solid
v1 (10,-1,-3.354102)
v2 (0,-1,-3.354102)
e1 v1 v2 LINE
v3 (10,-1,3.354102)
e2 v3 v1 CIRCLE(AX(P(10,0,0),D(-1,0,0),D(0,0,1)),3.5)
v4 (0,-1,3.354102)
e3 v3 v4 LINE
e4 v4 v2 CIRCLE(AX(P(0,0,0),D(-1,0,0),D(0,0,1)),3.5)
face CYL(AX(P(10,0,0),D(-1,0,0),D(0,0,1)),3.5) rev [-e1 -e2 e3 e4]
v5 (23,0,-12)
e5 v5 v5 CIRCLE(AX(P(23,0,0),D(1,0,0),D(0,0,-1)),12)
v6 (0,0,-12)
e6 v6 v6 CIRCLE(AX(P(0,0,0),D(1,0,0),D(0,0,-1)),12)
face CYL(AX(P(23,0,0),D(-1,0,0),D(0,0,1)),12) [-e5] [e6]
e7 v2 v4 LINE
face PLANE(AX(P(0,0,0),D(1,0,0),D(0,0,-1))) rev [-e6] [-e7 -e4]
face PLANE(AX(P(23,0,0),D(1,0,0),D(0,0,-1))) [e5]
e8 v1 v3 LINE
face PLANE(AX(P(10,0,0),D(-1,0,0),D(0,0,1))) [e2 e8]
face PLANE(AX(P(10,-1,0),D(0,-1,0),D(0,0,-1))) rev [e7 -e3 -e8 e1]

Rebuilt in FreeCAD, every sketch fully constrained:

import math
import FreeCAD as App
import Part
import Sketcher
Q = App.Units.Quantity

doc = App.newDocument("Part")
body = doc.addObject("PartDesign::Body", "Body")

# Sketch on YZ plane
sketch1 = body.newObject("Sketcher::SketchObject", "Sketch")
sketch1.AttachmentSupport = (doc.getObject("YZ_Plane"), [""])
sketch1.MapMode = "FlatFace"
sketch1.addGeometry(Part.Circle(App.Vector(0, 0, 0), App.Vector(0, 0, 1), 12), False)
sketch1.addConstraint(Sketcher.Constraint("Coincident", 0, 3, -1, 1))
sketch1.addConstraint(Sketcher.Constraint("Diameter", 0, Q("24 mm")))
pad1 = body.newObject("PartDesign::Pad", "Pad")
pad1.Profile = sketch1
pad1.Length = 23

# Sketch on YZ plane
sketch2 = body.newObject("Sketcher::SketchObject", "Sketch001")
sketch2.AttachmentSupport = (doc.getObject("YZ_Plane"), [""])
sketch2.MapMode = "FlatFace"
sketch2.addGeometry(Part.ArcOfCircle(Part.Circle(App.Vector(0, 0, 0), App.Vector(0, 0, 1), 3.5), math.radians(-107), math.radians(90)), False)
sketch2.addGeometry(Part.LineSegment(App.Vector(-1, -3.4, 0), App.Vector(-1, 3.4, 0)), False)
sketch2.addGeometry(Part.ArcOfCircle(Part.Circle(App.Vector(0, 0, 0), App.Vector(0, 0, 1), 3.5), math.radians(90), math.radians(106.6)), False)
sketch2.addConstraint(Sketcher.Constraint("Coincident", 0, 1, 1, 1))
sketch2.addConstraint(Sketcher.Constraint("Coincident", 1, 2, 2, 2))
sketch2.addConstraint(Sketcher.Constraint("Tangent", 2, 1, 0, 2))
sketch2.addConstraint(Sketcher.Constraint("Vertical", 1))
sketch2.addConstraint(Sketcher.Constraint("Coincident", 0, 3, -1, 1))
sketch2.addConstraint(Sketcher.Constraint("Equal", 0, 2))
sketch2.addConstraint(Sketcher.Constraint("PointOnObject", 2, 1, -2))
sketch2.addConstraint(Sketcher.Constraint("Radius", 0, Q("3.5 mm")))
sketch2.addConstraint(Sketcher.Constraint("DistanceX", 0, 1, -1, 1, Q("1 mm")))
pocket1 = body.newObject("PartDesign::Pocket", "Pocket")
pocket1.Profile = sketch2
pocket1.Length = 10
pocket1.Reversed = True

doc.recompute()
